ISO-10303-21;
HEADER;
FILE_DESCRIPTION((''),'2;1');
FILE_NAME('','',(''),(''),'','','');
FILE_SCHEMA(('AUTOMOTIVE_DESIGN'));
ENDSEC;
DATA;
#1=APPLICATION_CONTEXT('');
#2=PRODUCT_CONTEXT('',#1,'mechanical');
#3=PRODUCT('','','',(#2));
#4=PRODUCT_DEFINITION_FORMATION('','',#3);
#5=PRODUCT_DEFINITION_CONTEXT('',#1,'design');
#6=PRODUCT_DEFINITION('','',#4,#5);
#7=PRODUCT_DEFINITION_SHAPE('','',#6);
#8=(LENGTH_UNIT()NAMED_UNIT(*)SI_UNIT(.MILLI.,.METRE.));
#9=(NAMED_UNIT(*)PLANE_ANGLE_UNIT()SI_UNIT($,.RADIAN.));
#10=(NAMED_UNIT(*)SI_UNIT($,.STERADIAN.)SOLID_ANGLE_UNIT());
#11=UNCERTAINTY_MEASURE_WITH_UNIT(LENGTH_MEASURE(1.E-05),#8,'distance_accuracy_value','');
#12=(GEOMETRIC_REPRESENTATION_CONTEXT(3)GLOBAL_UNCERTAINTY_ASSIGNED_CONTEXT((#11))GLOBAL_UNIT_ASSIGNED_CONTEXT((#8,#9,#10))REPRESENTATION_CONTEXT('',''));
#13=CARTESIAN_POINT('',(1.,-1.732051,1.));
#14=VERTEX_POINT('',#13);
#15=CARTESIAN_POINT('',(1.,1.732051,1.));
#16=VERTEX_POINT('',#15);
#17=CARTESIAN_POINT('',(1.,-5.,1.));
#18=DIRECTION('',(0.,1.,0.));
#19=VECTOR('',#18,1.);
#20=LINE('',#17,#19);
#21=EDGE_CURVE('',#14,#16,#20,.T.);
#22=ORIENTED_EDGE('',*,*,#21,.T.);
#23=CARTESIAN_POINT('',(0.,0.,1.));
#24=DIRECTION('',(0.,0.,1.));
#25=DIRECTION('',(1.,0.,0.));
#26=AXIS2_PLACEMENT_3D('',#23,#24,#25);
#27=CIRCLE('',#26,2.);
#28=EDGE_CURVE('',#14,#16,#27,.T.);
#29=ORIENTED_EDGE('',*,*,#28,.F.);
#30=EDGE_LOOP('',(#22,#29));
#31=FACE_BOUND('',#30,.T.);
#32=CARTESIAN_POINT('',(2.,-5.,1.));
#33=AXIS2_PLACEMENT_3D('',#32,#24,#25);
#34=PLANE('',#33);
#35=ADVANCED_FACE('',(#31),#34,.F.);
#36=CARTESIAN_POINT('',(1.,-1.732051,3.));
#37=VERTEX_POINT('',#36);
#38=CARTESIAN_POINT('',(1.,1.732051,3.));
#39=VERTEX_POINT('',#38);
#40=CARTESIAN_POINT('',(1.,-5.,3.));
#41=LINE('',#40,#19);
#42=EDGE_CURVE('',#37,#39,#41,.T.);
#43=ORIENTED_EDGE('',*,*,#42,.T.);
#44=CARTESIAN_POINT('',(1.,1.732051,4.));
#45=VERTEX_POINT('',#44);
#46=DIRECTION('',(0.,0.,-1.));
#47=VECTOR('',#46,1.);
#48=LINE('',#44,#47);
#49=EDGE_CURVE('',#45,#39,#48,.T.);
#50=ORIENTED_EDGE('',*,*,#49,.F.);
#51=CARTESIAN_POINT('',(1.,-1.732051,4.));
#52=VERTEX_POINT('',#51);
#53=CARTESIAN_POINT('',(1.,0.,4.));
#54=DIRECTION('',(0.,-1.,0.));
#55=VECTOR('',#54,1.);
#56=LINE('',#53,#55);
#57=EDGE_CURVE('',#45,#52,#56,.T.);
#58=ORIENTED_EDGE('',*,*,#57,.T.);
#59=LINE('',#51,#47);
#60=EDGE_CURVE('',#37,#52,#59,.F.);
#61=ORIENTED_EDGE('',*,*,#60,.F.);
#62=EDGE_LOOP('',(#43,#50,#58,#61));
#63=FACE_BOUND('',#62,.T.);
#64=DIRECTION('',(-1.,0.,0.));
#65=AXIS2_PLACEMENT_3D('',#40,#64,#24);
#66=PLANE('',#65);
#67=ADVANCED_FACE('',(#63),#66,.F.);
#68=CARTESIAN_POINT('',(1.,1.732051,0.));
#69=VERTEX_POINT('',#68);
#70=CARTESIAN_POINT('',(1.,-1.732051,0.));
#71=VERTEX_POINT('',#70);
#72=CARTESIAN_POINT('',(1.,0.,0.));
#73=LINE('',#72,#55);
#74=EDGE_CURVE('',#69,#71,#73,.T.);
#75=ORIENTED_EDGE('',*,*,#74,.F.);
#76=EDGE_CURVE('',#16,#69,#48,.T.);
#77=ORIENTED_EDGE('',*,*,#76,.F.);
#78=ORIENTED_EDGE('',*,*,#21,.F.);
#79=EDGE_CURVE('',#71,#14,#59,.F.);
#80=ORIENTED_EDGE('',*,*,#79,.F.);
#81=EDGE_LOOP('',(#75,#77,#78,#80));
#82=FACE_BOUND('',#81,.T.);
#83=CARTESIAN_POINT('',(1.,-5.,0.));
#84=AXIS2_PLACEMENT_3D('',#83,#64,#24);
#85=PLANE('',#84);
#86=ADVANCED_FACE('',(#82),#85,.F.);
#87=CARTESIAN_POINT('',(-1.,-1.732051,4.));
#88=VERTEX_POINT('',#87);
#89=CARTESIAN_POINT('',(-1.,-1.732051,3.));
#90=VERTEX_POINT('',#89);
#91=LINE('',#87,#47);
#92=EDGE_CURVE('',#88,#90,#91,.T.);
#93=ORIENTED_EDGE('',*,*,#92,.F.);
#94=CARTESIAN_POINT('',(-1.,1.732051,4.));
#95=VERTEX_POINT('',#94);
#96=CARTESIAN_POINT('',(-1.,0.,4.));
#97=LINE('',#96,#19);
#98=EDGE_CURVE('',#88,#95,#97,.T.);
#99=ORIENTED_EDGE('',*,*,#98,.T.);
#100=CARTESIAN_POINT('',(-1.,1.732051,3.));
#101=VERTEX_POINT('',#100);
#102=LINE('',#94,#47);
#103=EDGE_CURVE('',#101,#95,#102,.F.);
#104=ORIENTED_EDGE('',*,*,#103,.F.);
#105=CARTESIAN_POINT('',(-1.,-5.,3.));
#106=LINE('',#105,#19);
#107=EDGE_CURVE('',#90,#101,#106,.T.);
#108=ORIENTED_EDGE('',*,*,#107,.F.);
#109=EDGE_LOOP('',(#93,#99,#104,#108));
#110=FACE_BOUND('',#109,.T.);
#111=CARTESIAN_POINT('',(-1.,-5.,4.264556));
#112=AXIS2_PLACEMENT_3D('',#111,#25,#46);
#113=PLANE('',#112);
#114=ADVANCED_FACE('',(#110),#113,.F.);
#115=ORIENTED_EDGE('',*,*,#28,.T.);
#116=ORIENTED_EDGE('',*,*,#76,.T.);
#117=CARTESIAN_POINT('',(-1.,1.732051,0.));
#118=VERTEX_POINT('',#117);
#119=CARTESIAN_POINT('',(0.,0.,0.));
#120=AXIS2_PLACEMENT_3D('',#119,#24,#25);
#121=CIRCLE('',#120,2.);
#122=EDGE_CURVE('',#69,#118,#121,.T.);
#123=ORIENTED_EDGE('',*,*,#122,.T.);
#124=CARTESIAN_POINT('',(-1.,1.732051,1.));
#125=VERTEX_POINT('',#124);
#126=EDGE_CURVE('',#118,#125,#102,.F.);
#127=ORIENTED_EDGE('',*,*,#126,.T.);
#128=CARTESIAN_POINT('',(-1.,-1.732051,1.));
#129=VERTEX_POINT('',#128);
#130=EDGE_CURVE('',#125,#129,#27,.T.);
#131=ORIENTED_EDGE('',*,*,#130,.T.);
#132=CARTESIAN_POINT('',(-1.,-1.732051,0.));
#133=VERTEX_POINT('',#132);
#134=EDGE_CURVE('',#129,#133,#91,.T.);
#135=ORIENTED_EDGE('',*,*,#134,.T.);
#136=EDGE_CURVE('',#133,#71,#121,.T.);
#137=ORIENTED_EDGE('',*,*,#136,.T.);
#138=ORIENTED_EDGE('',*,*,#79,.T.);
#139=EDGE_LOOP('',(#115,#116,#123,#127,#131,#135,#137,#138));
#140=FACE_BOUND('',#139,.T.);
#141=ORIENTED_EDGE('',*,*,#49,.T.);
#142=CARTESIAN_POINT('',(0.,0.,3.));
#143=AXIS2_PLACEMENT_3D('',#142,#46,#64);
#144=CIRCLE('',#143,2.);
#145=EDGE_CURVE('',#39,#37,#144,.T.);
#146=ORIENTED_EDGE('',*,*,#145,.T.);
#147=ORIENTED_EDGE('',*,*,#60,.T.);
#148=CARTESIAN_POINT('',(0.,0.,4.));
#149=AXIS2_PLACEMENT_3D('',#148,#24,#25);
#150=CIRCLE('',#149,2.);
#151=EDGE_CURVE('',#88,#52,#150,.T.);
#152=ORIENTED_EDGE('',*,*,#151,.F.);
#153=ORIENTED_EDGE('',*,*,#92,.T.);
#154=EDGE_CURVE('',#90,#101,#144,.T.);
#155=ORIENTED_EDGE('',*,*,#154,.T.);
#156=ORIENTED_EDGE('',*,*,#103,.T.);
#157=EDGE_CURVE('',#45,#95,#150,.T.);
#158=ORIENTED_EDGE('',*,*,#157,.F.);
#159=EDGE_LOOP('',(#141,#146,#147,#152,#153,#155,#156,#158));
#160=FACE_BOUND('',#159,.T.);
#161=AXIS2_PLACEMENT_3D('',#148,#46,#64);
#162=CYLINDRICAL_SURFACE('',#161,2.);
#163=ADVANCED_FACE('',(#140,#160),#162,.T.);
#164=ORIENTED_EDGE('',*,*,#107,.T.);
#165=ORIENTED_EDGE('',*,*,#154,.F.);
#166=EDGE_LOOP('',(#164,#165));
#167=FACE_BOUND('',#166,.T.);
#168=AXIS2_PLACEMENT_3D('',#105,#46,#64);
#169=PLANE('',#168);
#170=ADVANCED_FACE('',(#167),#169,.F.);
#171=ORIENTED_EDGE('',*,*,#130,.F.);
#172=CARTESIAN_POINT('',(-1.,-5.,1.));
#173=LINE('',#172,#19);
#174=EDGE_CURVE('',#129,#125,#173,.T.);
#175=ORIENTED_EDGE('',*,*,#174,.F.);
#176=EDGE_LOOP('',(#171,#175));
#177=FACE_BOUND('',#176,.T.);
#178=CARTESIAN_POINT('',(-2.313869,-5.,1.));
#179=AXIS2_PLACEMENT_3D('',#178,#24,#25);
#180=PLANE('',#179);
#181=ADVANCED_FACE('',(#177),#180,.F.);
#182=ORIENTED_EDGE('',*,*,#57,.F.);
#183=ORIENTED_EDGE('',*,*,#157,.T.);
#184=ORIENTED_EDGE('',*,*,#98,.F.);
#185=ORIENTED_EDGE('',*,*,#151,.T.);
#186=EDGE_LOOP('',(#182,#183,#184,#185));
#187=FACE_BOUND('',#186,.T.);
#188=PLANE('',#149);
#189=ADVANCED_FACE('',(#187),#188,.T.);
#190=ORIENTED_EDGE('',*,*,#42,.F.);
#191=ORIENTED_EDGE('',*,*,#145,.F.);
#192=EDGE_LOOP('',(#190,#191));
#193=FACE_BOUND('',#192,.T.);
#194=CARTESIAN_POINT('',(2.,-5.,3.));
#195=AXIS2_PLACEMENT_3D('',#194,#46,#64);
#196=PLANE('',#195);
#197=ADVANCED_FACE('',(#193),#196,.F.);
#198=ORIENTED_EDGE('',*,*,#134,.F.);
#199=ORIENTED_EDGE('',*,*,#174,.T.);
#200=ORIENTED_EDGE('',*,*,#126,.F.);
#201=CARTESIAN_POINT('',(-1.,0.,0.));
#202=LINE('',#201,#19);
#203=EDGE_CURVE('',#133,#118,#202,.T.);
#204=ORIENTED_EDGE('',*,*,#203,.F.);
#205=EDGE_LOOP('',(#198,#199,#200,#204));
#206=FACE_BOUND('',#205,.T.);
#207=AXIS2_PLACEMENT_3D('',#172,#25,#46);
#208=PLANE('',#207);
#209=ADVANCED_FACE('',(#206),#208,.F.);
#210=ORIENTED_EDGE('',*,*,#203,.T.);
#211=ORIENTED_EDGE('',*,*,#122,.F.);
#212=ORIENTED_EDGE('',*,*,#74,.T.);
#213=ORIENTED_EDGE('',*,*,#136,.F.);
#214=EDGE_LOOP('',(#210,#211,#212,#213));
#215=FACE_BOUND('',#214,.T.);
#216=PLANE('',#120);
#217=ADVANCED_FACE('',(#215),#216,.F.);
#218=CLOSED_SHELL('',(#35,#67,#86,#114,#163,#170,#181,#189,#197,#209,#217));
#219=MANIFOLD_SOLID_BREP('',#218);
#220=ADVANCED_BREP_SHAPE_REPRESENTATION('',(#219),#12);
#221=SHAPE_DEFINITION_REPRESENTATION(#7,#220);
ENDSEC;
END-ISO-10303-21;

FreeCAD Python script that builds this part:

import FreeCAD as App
import Part
import Sketcher
from FreeCAD import Vector

doc = App.newDocument("Part")
body = doc.addObject("PartDesign::Body", "Body")

# Sketch on XY plane
sketch1 = body.newObject("Sketcher::SketchObject", "Sketch")
sketch1.AttachmentSupport = (doc.getObject("XY_Plane"), [""])
sketch1.MapMode = "FlatFace"
sketch1.addGeometry(Part.Circle(Vector(0, 0, 0), Vector(0, 0, 1), 2), False)
sketch1.addConstraint([
    Sketcher.Constraint("Coincident", 0, 3, -1, 1),
    Sketcher.Constraint("Diameter", 0, 4.0),
])
pad1 = body.newObject("PartDesign::Pad", "Pad")
pad1.Profile = sketch1
pad1.Length = 4

# Sketch on XZ plane
sketch2 = body.newObject("Sketcher::SketchObject", "Sketch001")
sketch2.AttachmentSupport = (doc.getObject("XZ_Plane"), [""])
sketch2.MapMode = "FlatFace"
sketch2.addGeometry([
    Part.LineSegment(Vector(2, 3, 0), Vector(1, 3, 0)),  # 0
    Part.LineSegment(Vector(1, 3, 0), Vector(1, 4.2, 0)),  # 1
    Part.LineSegment(Vector(1, 4.2, 0), Vector(-1, 4.3, 0)),  # 2
    Part.LineSegment(Vector(-1, 4.3, 0), Vector(-1, 3, 0)),  # 3
    Part.LineSegment(Vector(-1, 3, 0), Vector(-2.3, 3, 0)),  # 4
    Part.LineSegment(Vector(-2.3, 3, 0), Vector(-2.3, 1, 0)),  # 5
    Part.LineSegment(Vector(-2.3, 1, 0), Vector(-1, 1, 0)),  # 6
    Part.LineSegment(Vector(-1, 1, 0), Vector(-1, -0.2, 0)),  # 7
    Part.LineSegment(Vector(-1, -0.2, 0), Vector(-2.6, -0.2, 0)),  # 8
    Part.LineSegment(Vector(-2.6, -0.2, 0), Vector(-2.5, 4.3, 0)),  # 9
    Part.LineSegment(Vector(-2.5, 4.3, 0), Vector(2, 4.6, 0)),  # 10
    Part.LineSegment(Vector(2, 4.6, 0), Vector(2.6, 4.2, 0)),  # 11
    Part.LineSegment(Vector(2.6, 4.2, 0), Vector(2, 3, 0)),  # 12
], False)
sketch2.addConstraint([
    Sketcher.Constraint("Coincident", 0, 2, 1, 1),
    Sketcher.Constraint("Coincident", 1, 2, 2, 1),
    Sketcher.Constraint("Coincident", 2, 2, 3, 1),
    Sketcher.Constraint("Coincident", 3, 2, 4, 1),
    Sketcher.Constraint("Coincident", 4, 2, 5, 1),
    Sketcher.Constraint("Coincident", 5, 2, 6, 1),
    Sketcher.Constraint("Coincident", 6, 2, 7, 1),
    Sketcher.Constraint("Coincident", 7, 2, 8, 1),
    Sketcher.Constraint("Coincident", 8, 2, 9, 1),
    Sketcher.Constraint("Coincident", 9, 2, 10, 1),
    Sketcher.Constraint("Coincident", 10, 2, 11, 1),
    Sketcher.Constraint("Coincident", 11, 2, 12, 1),
    Sketcher.Constraint("Coincident", 12, 2, 0, 1),
    Sketcher.Constraint("Horizontal", 0),
    Sketcher.Constraint("Vertical", 1),
    Sketcher.Constraint("Vertical", 3),
    Sketcher.Constraint("Horizontal", 4),
    Sketcher.Constraint("Vertical", 5),
    Sketcher.Constraint("Horizontal", 6),
    Sketcher.Constraint("Vertical", 7),
    Sketcher.Constraint("Symmetric", 0, 2, 3, 2, -2),
    Sketcher.Constraint("Parallel", 2, 8),
    Sketcher.Constraint("Perpendicular", 8, 9),
    Sketcher.Constraint("Horizontal", 1, 2, 11, 2),
    Sketcher.Constraint("Vertical", 3, 2, 6, 2),
    Sketcher.Constraint("Vertical", 10, 2, 12, 2),
    Sketcher.Constraint("DistanceX", 0, 2, 0, 1, 1.0),
    Sketcher.Constraint("DistanceY", 5, 2, 5, 1, 2.0),
    Sketcher.Constraint("DistanceX", -1, 1, 0, 2, 1.0),
    Sketcher.Constraint("DistanceY", -1, 1, 0, 2, 3.0),
    Sketcher.Constraint("DistanceX", 4, 2, 4, 1, 1.313869),
    Sketcher.Constraint("DistanceY", 1, 1, 1, 2, 1.221508),
    Sketcher.Constraint("DistanceY", 3, 2, 3, 1, 1.264556),
    Sketcher.Constraint("DistanceY", 7, 2, 7, 1, 1.234035),
    Sketcher.Constraint("DistanceX", 8, 2, -1, 1, 2.58676),
    Sketcher.Constraint("DistanceY", -1, 1, 9, 2, 4.30698),
    Sketcher.Constraint("DistanceX", -1, 1, 11, 2, 2.554572),
    Sketcher.Constraint("Distance", 10, 4.500584),
])
pocket1 = body.newObject("PartDesign::Pocket", "Pocket")
pocket1.Profile = sketch2
pocket1.Length = 10
pocket1.Midplane = True

# Sketch on XZ plane
sketch3 = body.newObject("Sketcher::SketchObject", "Sketch002")
sketch3.AttachmentSupport = (doc.getObject("XZ_Plane"), [""])
sketch3.MapMode = "FlatFace"
sketch3.addGeometry([
    Part.LineSegment(Vector(1, 0, 0), Vector(1, 1, 0)),
    Part.LineSegment(Vector(1, 1, 0), Vector(2, 1, 0)),
    Part.LineSegment(Vector(2, 1, 0), Vector(2, 0, 0)),
    Part.LineSegment(Vector(2, 0, 0), Vector(1, 0, 0)),
], False)
sketch3.addConstraint([
    Sketcher.Constraint("Coincident", 0, 2, 1, 1),
    Sketcher.Constraint("Coincident", 1, 2, 2, 1),
    Sketcher.Constraint("Coincident", 2, 2, 3, 1),
    Sketcher.Constraint("Coincident", 3, 2, 0, 1),
    Sketcher.Constraint("Vertical", 0),
    Sketcher.Constraint("Horizontal", 1),
    Sketcher.Constraint("Vertical", 2),
    Sketcher.Constraint("Horizontal", 3),
    Sketcher.Constraint("PointOnObject", 2, 2, -1),
    Sketcher.Constraint("Equal", 3, 0),
    Sketcher.Constraint("DistanceX", 1, 1, 1, 2, 1.0),
    Sketcher.Constraint("DistanceX", -1, 1, 0, 2, 1.0),
])
pocket2 = body.newObject("PartDesign::Pocket", "Pocket001")
pocket2.Profile = sketch3
pocket2.Length = 10
pocket2.Midplane = True

doc.recompute()
